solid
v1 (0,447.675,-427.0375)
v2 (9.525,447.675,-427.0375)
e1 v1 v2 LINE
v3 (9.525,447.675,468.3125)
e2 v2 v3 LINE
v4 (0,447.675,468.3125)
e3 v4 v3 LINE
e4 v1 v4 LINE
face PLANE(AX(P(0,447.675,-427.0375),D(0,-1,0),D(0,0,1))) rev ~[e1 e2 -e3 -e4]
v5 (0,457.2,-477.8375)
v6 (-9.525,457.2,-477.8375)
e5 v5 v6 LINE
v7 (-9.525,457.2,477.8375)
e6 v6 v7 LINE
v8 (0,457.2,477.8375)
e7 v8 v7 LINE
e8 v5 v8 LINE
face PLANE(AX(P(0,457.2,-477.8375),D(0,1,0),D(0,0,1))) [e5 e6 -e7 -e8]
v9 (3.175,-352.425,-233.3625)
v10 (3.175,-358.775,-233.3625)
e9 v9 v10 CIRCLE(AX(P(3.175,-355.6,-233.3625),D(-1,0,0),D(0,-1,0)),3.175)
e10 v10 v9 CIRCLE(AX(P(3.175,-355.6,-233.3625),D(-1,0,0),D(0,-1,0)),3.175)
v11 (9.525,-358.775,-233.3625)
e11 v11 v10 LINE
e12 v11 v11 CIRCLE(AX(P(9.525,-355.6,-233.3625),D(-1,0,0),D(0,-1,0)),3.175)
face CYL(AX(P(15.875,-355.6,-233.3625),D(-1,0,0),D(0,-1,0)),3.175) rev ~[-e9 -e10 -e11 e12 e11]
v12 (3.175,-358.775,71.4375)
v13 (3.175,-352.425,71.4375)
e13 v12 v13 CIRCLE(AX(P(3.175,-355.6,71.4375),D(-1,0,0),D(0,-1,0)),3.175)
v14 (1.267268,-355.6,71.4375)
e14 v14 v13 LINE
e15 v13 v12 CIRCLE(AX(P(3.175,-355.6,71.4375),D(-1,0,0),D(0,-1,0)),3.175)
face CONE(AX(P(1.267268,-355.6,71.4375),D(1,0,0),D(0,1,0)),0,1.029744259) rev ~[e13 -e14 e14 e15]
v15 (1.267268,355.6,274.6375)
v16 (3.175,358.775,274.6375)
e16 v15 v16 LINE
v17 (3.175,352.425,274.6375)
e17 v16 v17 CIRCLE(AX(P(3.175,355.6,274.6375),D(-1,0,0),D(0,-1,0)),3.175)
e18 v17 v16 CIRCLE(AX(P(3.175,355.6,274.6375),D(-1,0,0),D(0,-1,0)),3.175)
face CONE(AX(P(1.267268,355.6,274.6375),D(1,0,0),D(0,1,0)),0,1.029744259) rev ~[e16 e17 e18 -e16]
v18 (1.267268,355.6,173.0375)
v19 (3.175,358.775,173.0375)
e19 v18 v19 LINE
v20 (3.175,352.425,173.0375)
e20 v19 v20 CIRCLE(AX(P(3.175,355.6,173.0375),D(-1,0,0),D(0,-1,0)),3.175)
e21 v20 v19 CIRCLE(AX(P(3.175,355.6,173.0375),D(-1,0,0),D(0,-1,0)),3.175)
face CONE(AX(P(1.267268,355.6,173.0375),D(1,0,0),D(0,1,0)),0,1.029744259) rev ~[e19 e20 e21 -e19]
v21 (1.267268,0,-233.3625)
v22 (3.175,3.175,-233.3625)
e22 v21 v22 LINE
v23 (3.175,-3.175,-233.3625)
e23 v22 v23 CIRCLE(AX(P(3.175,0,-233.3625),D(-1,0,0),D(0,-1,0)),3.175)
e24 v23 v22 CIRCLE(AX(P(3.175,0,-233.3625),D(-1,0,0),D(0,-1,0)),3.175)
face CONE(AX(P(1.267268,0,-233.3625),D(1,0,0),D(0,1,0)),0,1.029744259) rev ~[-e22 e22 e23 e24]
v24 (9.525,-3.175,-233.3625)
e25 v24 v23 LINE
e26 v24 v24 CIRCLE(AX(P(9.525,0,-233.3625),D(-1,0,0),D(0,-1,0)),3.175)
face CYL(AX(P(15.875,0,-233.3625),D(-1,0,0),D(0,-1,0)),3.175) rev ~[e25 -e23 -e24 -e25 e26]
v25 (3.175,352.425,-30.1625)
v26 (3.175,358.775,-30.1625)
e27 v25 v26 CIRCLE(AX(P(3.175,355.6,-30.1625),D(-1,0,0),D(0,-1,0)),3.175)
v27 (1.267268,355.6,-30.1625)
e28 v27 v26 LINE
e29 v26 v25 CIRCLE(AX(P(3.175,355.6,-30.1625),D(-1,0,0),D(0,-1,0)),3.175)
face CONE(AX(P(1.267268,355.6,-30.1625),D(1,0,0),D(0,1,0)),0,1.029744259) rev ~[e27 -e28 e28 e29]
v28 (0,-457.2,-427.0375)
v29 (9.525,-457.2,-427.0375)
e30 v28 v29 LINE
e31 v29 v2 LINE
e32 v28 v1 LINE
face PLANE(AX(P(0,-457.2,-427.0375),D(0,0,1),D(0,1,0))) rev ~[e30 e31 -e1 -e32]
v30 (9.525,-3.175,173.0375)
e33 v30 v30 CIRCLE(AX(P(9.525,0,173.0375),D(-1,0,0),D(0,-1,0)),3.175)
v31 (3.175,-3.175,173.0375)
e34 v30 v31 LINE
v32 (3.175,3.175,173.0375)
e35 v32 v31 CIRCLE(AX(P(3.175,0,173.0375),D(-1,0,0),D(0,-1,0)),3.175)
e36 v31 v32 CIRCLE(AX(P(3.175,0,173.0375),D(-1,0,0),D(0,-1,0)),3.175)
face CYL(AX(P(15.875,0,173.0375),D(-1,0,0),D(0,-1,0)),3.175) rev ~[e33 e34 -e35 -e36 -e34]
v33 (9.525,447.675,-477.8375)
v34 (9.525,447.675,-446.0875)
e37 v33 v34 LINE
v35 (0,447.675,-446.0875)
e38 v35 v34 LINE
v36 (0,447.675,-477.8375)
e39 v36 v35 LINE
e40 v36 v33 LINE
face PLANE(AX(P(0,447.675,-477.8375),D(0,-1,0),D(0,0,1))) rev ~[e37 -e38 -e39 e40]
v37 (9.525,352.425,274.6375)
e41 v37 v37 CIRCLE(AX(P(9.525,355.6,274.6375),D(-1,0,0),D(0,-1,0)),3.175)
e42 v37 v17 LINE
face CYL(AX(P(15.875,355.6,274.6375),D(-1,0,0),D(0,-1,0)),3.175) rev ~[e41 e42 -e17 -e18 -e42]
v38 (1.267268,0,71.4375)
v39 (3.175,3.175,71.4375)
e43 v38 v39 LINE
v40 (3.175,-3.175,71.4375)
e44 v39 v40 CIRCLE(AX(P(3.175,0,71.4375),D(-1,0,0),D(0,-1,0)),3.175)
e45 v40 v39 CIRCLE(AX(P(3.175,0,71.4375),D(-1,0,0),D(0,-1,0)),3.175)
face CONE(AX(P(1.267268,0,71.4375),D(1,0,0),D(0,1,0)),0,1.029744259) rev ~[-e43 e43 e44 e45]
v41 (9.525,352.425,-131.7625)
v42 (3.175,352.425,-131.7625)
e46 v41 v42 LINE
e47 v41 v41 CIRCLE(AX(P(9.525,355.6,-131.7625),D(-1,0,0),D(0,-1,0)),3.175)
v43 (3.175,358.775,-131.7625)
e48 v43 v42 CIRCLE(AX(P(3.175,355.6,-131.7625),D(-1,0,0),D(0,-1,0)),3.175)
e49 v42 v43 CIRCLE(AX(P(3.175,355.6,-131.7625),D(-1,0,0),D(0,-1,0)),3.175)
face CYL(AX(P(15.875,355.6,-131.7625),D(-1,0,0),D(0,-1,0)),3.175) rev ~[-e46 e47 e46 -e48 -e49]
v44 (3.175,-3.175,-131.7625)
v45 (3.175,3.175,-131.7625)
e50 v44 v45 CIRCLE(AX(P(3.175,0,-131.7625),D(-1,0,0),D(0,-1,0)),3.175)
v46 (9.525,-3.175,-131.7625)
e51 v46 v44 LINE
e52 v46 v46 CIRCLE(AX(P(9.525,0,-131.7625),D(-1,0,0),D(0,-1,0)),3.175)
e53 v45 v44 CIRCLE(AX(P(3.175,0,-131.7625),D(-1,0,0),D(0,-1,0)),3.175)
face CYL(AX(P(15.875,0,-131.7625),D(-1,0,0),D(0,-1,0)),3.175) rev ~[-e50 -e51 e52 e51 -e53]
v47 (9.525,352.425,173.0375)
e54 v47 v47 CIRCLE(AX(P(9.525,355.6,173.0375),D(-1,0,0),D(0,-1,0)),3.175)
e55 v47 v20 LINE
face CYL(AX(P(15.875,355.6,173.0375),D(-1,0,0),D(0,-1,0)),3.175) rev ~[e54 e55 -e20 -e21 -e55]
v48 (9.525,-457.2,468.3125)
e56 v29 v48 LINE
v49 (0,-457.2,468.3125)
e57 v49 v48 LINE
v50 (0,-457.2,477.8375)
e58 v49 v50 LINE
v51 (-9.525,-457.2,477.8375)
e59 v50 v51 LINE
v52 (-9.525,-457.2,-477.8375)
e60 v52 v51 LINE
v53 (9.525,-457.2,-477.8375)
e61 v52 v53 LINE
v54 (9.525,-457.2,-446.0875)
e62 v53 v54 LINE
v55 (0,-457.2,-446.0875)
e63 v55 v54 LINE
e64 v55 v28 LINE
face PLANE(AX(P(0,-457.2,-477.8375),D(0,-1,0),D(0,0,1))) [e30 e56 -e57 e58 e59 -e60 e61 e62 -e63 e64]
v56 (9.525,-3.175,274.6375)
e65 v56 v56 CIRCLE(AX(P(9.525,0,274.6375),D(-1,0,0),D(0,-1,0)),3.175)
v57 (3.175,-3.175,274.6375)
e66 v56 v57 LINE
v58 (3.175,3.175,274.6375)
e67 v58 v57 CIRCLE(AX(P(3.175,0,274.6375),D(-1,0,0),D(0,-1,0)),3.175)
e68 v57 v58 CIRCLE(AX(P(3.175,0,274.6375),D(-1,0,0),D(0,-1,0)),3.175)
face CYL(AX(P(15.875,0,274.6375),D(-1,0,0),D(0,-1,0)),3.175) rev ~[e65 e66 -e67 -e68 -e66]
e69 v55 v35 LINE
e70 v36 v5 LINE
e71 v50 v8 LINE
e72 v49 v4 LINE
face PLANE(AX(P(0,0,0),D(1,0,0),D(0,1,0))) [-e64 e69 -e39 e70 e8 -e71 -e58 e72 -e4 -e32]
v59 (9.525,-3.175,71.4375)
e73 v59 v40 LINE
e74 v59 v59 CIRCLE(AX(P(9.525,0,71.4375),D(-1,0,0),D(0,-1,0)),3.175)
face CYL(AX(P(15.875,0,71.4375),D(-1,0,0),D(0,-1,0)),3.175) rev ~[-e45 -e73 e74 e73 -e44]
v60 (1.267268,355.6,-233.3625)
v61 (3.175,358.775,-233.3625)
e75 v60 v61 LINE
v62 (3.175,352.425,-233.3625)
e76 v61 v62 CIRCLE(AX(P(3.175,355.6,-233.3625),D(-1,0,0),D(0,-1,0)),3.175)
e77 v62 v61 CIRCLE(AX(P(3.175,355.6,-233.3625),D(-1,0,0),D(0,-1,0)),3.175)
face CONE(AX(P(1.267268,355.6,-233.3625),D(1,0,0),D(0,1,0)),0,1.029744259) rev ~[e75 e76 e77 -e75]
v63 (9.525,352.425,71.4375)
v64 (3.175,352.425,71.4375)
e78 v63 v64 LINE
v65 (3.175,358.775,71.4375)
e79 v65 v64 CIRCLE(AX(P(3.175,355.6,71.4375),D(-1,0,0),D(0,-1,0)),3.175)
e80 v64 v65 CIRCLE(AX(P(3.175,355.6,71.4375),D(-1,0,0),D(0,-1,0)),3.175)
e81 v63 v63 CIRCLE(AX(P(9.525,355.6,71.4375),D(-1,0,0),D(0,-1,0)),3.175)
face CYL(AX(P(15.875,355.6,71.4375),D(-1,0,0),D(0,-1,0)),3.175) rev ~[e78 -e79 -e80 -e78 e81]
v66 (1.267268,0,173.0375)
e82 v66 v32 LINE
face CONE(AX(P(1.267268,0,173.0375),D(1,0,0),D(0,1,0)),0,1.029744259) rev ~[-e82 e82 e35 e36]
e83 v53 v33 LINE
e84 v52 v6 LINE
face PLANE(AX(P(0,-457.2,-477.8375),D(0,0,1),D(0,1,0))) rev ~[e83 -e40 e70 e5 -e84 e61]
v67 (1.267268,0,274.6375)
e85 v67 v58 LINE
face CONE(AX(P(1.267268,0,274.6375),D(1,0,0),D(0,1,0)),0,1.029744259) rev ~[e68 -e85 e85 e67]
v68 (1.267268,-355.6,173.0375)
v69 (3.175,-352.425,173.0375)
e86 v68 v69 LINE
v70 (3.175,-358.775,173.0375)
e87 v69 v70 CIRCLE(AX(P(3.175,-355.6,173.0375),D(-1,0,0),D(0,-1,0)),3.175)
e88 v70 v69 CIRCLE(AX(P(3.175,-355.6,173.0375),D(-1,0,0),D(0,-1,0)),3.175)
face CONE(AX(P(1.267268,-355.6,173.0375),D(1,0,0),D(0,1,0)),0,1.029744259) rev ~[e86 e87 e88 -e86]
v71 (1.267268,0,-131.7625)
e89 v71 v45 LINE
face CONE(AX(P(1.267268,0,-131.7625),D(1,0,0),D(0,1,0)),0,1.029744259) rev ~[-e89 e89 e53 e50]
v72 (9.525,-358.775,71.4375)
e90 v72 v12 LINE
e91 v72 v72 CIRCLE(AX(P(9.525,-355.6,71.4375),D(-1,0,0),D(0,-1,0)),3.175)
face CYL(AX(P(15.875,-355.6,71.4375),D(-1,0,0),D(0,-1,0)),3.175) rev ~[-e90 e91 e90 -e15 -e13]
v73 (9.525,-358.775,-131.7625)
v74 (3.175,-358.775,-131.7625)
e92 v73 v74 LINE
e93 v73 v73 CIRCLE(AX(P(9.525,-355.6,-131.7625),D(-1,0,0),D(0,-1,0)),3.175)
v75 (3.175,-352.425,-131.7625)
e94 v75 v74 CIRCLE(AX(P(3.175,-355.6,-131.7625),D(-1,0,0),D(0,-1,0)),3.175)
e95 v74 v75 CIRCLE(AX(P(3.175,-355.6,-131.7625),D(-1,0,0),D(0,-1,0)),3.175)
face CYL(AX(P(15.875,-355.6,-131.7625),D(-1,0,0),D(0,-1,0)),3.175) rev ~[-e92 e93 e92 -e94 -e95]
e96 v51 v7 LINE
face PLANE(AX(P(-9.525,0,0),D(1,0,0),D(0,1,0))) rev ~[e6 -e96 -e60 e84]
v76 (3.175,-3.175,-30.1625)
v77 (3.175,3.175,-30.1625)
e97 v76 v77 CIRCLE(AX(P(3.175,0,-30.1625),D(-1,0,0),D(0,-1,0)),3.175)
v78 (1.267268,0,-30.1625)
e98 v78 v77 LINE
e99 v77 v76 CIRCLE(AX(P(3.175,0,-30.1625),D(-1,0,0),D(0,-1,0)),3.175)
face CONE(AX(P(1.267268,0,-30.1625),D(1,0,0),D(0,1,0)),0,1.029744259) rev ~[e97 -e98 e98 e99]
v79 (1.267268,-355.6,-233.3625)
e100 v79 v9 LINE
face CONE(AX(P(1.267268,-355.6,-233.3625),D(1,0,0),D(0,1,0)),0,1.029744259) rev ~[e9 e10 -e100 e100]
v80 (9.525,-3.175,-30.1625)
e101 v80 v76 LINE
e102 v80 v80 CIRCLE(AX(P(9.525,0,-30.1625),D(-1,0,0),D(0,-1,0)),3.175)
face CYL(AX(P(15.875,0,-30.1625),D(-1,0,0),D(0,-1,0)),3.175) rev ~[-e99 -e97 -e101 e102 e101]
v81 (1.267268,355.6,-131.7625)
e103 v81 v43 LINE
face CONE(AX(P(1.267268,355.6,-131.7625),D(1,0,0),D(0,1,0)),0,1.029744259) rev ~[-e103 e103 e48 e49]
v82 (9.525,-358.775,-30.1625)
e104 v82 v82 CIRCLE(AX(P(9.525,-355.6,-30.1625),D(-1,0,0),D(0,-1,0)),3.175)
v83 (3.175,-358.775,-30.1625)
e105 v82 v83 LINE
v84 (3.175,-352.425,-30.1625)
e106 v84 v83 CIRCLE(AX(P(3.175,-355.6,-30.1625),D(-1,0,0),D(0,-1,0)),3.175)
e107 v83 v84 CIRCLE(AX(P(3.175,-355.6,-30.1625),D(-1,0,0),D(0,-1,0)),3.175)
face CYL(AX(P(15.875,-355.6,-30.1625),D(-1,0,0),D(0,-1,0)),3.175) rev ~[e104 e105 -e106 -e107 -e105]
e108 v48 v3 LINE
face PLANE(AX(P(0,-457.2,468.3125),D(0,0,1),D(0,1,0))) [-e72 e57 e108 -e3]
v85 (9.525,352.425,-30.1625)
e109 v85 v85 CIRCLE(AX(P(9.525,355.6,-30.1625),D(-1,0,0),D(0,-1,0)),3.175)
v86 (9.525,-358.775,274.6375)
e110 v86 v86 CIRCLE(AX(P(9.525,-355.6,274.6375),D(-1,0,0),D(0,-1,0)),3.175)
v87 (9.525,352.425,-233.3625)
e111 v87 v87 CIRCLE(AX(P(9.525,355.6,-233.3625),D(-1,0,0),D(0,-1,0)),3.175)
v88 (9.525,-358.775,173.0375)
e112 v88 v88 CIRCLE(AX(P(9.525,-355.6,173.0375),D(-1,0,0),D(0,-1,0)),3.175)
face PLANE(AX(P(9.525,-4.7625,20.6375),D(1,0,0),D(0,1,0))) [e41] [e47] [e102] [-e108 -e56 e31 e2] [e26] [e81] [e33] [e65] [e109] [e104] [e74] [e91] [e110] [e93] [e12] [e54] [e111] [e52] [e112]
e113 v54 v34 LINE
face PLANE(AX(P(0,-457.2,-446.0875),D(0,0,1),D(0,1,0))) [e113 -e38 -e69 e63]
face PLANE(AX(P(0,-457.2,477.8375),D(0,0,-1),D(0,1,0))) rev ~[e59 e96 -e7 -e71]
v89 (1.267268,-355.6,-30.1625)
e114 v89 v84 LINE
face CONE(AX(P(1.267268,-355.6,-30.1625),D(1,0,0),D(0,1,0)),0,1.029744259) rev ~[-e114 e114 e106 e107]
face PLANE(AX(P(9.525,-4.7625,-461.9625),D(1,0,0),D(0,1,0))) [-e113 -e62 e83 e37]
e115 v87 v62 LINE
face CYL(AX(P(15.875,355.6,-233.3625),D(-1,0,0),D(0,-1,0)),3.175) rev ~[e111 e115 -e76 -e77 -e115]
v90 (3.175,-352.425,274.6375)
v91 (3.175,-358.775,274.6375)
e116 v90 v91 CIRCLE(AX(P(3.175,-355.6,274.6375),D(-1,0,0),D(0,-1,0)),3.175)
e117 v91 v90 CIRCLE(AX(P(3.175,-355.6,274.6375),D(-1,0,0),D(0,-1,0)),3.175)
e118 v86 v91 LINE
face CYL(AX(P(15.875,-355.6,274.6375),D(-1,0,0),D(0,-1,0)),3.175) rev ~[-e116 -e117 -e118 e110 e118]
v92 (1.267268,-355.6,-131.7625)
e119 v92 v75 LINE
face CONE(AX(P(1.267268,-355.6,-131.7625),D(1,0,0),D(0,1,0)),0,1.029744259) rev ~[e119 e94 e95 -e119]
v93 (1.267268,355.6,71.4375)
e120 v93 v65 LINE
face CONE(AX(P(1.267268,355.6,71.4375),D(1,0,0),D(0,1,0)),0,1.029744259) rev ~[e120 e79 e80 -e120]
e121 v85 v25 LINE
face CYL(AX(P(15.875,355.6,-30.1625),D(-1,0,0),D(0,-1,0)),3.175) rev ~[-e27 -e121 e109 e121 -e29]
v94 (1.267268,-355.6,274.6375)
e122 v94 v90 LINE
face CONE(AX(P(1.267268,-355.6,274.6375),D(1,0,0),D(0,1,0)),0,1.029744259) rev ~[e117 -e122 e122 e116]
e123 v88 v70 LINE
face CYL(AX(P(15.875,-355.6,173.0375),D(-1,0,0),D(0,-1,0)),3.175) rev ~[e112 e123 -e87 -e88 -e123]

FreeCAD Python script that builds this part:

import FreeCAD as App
import Part
import Sketcher
from FreeCAD import Vector
Q = App.Units.Quantity

doc = App.newDocument("Part")
body = doc.addObject("PartDesign::Body", "Body")

# Sketch on YZ plane
sketch1 = body.newObject("Sketcher::SketchObject", "Sketch")
sketch1.AttachmentSupport = (doc.getObject("YZ_Plane"), [""])
sketch1.MapMode = "FlatFace"
sketch1.addGeometry([
    Part.LineSegment(Vector(-457, 478, 0), Vector(-457, -478, 0)),
    Part.LineSegment(Vector(-457, -478, 0), Vector(457, -478, 0)),
    Part.LineSegment(Vector(457, -478, 0), Vector(457, 478, 0)),
    Part.LineSegment(Vector(457, 478, 0), Vector(-457, 478, 0)),
], False)
sketch1.addConstraint([
    Sketcher.Constraint("Coincident", 0, 2, 1, 1),
    Sketcher.Constraint("Coincident", 1, 2, 2, 1),
    Sketcher.Constraint("Coincident", 2, 2, 3, 1),
    Sketcher.Constraint("Coincident", 3, 2, 0, 1),
    Sketcher.Constraint("Vertical", 0),
    Sketcher.Constraint("Horizontal", 1),
    Sketcher.Constraint("Vertical", 2),
    Sketcher.Constraint("Horizontal", 3),
    Sketcher.Constraint("Symmetric", 0, 2, 2, 2, -1, 1),
    Sketcher.Constraint("DistanceX", 1, 1, 1, 2, Q("36 in")),
    Sketcher.Constraint("DistanceY", 0, 2, 0, 1, Q("37.625 in")),
])
pad1 = body.newObject("PartDesign::Pad", "Pad")
pad1.Profile = sketch1
pad1.Length = Q("0.375 in")
pad1.Reversed = True

# Sketch on YZ plane
sketch2 = body.newObject("Sketcher::SketchObject", "Sketch001")
sketch2.AttachmentSupport = (doc.getObject("YZ_Plane"), [""])
sketch2.MapMode = "FlatFace"
sketch2.addGeometry([
    Part.LineSegment(Vector(-457, 468, 0), Vector(-457, -427, 0)),  # 0
    Part.LineSegment(Vector(-457, -427, 0), Vector(448, -427, 0)),  # 1
    Part.LineSegment(Vector(448, -427, 0), Vector(448, 468, 0)),  # 2
    Part.LineSegment(Vector(448, 468, 0), Vector(-457, 468, 0)),  # 3
    Part.LineSegment(Vector(-457, -446, 0), Vector(-457, -478, 0)),  # 4
    Part.LineSegment(Vector(-457, -478, 0), Vector(448, -478, 0)),  # 5
    Part.LineSegment(Vector(448, -478, 0), Vector(448, -446, 0)),  # 6
    Part.LineSegment(Vector(448, -446, 0), Vector(-457, -446, 0)),  # 7
], False)
sketch2.addConstraint([
    Sketcher.Constraint("Coincident", 0, 2, 1, 1),
    Sketcher.Constraint("Coincident", 1, 2, 2, 1),
    Sketcher.Constraint("Coincident", 2, 2, 3, 1),
    Sketcher.Constraint("Coincident", 3, 2, 0, 1),
    Sketcher.Constraint("Coincident", 4, 2, 5, 1),
    Sketcher.Constraint("Coincident", 5, 2, 6, 1),
    Sketcher.Constraint("Coincident", 6, 2, 7, 1),
    Sketcher.Constraint("Coincident", 7, 2, 4, 1),
    Sketcher.Constraint("Vertical", 0),
    Sketcher.Constraint("Horizontal", 1),
    Sketcher.Constraint("Vertical", 2),
    Sketcher.Constraint("Horizontal", 3),
    Sketcher.Constraint("Vertical", 4),
    Sketcher.Constraint("Horizontal", 5),
    Sketcher.Constraint("Vertical", 6),
    Sketcher.Constraint("Horizontal", 7),
    Sketcher.Constraint("Vertical", 3, 2, 4, 2),
    Sketcher.Constraint("Vertical", 2, 2, 5, 2),
    Sketcher.Constraint("DistanceX", 0, 2, -1, 1, Q("18 in")),
    Sketcher.Constraint("DistanceY", 4, 2, 0, 2, Q("2 in")),
    Sketcher.Constraint("DistanceY", 6, 2, 2, 2, Q("36 in")),
    Sketcher.Constraint("DistanceY", 0, 2, 0, 1, Q("35.25 in")),
    Sketcher.Constraint("DistanceX", 1, 1, 1, 2, Q("35.625 in")),
    Sketcher.Constraint("DistanceY", 0, 2, -1, 1, Q("16.8125 in")),
])
pad2 = body.newObject("PartDesign::Pad", "Pad001")
pad2.Profile = sketch2
pad2.Length = Q("0.375 in")

# Sketch on YZ plane
sketch3 = body.newObject("Sketcher::SketchObject", "Sketch002")
sketch3.AttachmentSupport = (doc.getObject("YZ_Plane"), [""])
sketch3.MapMode = "FlatFace"
sketch3.AttachmentOffset = App.Placement(Vector(0, 0, 0.375 * 25.4), App.Rotation())
sketch3.addGeometry([
    Part.Circle(Vector(-355.6, 274.6, 0), Vector(0, 0, 1), 3.2),  # 0
    Part.Circle(Vector(0, -30.2, 0), Vector(0, 0, 1), 3.2),  # 1
    Part.Circle(Vector(-355.6, 173, 0), Vector(0, 0, 1), 3.2),  # 2
    Part.Circle(Vector(0, 173, 0), Vector(0, 0, 1), 3.2),  # 3
    Part.Circle(Vector(355.6, 173, 0), Vector(0, 0, 1), 3.2),  # 4
    Part.Circle(Vector(-355.6, 71.4, 0), Vector(0, 0, 1), 3.2),  # 5
    Part.Circle(Vector(355.6, -30.2, 0), Vector(0, 0, 1), 3.2),  # 6
    Part.Circle(Vector(0, 274.6, 0), Vector(0, 0, 1), 3.2),  # 7
    Part.Circle(Vector(0, -131.8, 0), Vector(0, 0, 1), 3.2),  # 8
    Part.Circle(Vector(0, 71.4, 0), Vector(0, 0, 1), 3.2),  # 9
    Part.Circle(Vector(-355.6, -131.8, 0), Vector(0, 0, 1), 3.2),  # 10
    Part.Circle(Vector(355.6, 274.6, 0), Vector(0, 0, 1), 3.2),  # 11
    Part.Circle(Vector(355.6, -233.4, 0), Vector(0, 0, 1), 3.2),  # 12
    Part.Circle(Vector(-355.6, -233.4, 0), Vector(0, 0, 1), 3.2),  # 13
    Part.Circle(Vector(355.6, -131.8, 0), Vector(0, 0, 1), 3.2),  # 14
    Part.Circle(Vector(0, -233.4, 0), Vector(0, 0, 1), 3.2),  # 15
    Part.Circle(Vector(-355.6, -30.2, 0), Vector(0, 0, 1), 3.2),  # 16
    Part.Circle(Vector(355.6, 71.4, 0), Vector(0, 0, 1), 3.2),  # 17
], False)
sketch3.addConstraint([
    Sketcher.Constraint("Equal", 0, 1),
    Sketcher.Constraint("Equal", 1, 2),
    Sketcher.Constraint("Equal", 2, 3),
    Sketcher.Constraint("Equal", 3, 4),
    Sketcher.Constraint("Equal", 4, 5),
    Sketcher.Constraint("Equal", 5, 6),
    Sketcher.Constraint("Equal", 6, 7),
    Sketcher.Constraint("Equal", 7, 8),
    Sketcher.Constraint("Equal", 8, 9),
    Sketcher.Constraint("Equal", 9, 10),
    Sketcher.Constraint("Equal", 10, 11),
    Sketcher.Constraint("Equal", 11, 12),
    Sketcher.Constraint("Equal", 12, 13),
    Sketcher.Constraint("Equal", 13, 14),
    Sketcher.Constraint("Equal", 14, 15),
    Sketcher.Constraint("Equal", 15, 16),
    Sketcher.Constraint("Equal", 16, 17),
    Sketcher.Constraint("Symmetric", 2, 3, 4, 3, -2),
    Sketcher.Constraint("Symmetric", 0, 3, 11, 3, -2),
    Sketcher.Constraint("Symmetric", 12, 3, 13, 3, -2),
    Sketcher.Constraint("Symmetric", 10, 3, 14, 3, -2),
    Sketcher.Constraint("Symmetric", 6, 3, 16, 3, -2),
    Sketcher.Constraint("Symmetric", 5, 3, 17, 3, -2),
    Sketcher.Constraint("PointOnObject", 1, 3, -2),
    Sketcher.Constraint("PointOnObject", 3, 3, -2),
    Sketcher.Constraint("PointOnObject", 7, 3, -2),
    Sketcher.Constraint("PointOnObject", 8, 3, -2),
    Sketcher.Constraint("PointOnObject", 9, 3, -2),
    Sketcher.Constraint("PointOnObject", 15, 3, -2),
    Sketcher.Constraint("Horizontal", 2, 3, 3, 3),
    Sketcher.Constraint("Horizontal", 1, 3, 6, 3),
    Sketcher.Constraint("Horizontal", 0, 3, 7, 3),
    Sketcher.Constraint("Horizontal", 5, 3, 9, 3),
    Sketcher.Constraint("Horizontal", 8, 3, 10, 3),
    Sketcher.Constraint("Horizontal", 13, 3, 15, 3),
    Sketcher.Constraint("Vertical", 0, 3, 2, 3),
    Sketcher.Constraint("Vertical", 2, 3, 5, 3),
    Sketcher.Constraint("Vertical", 4, 3, 6, 3),
    Sketcher.Constraint("Vertical", 5, 3, 10, 3),
    Sketcher.Constraint("Vertical", 11, 3, 12, 3),
    Sketcher.Constraint("Diameter", 0, Q("0.25 in")),
    Sketcher.Constraint("DistanceX", 0, 3, -1, 1, Q("14 in")),
    Sketcher.Constraint("DistanceY", 1, 3, 0, 3, Q("12 in")),
    Sketcher.Constraint("DistanceY", 2, 3, 0, 3, Q("4 in")),
    Sketcher.Constraint("DistanceY", 5, 3, 2, 3, Q("4 in")),
    Sketcher.Constraint("DistanceY", 8, 3, 1, 3, Q("4 in")),
    Sketcher.Constraint("DistanceY", 12, 3, 6, 3, Q("8 in")),
    Sketcher.Constraint("DistanceY", -1, 1, 0, 3, Q("10.8125 in")),
])
doc.recompute()
hole = body.newObject("PartDesign::Hole", "Hole")
hole.Profile = sketch3
hole.ThreadType = "None"
hole.Diameter = Q("0.25 in")
hole.DepthType = "Dimension"
hole.Depth = Q("0.25 in")
hole.DrillPoint = "Angled"
hole.DrillPointAngle = 118

doc.recompute()
